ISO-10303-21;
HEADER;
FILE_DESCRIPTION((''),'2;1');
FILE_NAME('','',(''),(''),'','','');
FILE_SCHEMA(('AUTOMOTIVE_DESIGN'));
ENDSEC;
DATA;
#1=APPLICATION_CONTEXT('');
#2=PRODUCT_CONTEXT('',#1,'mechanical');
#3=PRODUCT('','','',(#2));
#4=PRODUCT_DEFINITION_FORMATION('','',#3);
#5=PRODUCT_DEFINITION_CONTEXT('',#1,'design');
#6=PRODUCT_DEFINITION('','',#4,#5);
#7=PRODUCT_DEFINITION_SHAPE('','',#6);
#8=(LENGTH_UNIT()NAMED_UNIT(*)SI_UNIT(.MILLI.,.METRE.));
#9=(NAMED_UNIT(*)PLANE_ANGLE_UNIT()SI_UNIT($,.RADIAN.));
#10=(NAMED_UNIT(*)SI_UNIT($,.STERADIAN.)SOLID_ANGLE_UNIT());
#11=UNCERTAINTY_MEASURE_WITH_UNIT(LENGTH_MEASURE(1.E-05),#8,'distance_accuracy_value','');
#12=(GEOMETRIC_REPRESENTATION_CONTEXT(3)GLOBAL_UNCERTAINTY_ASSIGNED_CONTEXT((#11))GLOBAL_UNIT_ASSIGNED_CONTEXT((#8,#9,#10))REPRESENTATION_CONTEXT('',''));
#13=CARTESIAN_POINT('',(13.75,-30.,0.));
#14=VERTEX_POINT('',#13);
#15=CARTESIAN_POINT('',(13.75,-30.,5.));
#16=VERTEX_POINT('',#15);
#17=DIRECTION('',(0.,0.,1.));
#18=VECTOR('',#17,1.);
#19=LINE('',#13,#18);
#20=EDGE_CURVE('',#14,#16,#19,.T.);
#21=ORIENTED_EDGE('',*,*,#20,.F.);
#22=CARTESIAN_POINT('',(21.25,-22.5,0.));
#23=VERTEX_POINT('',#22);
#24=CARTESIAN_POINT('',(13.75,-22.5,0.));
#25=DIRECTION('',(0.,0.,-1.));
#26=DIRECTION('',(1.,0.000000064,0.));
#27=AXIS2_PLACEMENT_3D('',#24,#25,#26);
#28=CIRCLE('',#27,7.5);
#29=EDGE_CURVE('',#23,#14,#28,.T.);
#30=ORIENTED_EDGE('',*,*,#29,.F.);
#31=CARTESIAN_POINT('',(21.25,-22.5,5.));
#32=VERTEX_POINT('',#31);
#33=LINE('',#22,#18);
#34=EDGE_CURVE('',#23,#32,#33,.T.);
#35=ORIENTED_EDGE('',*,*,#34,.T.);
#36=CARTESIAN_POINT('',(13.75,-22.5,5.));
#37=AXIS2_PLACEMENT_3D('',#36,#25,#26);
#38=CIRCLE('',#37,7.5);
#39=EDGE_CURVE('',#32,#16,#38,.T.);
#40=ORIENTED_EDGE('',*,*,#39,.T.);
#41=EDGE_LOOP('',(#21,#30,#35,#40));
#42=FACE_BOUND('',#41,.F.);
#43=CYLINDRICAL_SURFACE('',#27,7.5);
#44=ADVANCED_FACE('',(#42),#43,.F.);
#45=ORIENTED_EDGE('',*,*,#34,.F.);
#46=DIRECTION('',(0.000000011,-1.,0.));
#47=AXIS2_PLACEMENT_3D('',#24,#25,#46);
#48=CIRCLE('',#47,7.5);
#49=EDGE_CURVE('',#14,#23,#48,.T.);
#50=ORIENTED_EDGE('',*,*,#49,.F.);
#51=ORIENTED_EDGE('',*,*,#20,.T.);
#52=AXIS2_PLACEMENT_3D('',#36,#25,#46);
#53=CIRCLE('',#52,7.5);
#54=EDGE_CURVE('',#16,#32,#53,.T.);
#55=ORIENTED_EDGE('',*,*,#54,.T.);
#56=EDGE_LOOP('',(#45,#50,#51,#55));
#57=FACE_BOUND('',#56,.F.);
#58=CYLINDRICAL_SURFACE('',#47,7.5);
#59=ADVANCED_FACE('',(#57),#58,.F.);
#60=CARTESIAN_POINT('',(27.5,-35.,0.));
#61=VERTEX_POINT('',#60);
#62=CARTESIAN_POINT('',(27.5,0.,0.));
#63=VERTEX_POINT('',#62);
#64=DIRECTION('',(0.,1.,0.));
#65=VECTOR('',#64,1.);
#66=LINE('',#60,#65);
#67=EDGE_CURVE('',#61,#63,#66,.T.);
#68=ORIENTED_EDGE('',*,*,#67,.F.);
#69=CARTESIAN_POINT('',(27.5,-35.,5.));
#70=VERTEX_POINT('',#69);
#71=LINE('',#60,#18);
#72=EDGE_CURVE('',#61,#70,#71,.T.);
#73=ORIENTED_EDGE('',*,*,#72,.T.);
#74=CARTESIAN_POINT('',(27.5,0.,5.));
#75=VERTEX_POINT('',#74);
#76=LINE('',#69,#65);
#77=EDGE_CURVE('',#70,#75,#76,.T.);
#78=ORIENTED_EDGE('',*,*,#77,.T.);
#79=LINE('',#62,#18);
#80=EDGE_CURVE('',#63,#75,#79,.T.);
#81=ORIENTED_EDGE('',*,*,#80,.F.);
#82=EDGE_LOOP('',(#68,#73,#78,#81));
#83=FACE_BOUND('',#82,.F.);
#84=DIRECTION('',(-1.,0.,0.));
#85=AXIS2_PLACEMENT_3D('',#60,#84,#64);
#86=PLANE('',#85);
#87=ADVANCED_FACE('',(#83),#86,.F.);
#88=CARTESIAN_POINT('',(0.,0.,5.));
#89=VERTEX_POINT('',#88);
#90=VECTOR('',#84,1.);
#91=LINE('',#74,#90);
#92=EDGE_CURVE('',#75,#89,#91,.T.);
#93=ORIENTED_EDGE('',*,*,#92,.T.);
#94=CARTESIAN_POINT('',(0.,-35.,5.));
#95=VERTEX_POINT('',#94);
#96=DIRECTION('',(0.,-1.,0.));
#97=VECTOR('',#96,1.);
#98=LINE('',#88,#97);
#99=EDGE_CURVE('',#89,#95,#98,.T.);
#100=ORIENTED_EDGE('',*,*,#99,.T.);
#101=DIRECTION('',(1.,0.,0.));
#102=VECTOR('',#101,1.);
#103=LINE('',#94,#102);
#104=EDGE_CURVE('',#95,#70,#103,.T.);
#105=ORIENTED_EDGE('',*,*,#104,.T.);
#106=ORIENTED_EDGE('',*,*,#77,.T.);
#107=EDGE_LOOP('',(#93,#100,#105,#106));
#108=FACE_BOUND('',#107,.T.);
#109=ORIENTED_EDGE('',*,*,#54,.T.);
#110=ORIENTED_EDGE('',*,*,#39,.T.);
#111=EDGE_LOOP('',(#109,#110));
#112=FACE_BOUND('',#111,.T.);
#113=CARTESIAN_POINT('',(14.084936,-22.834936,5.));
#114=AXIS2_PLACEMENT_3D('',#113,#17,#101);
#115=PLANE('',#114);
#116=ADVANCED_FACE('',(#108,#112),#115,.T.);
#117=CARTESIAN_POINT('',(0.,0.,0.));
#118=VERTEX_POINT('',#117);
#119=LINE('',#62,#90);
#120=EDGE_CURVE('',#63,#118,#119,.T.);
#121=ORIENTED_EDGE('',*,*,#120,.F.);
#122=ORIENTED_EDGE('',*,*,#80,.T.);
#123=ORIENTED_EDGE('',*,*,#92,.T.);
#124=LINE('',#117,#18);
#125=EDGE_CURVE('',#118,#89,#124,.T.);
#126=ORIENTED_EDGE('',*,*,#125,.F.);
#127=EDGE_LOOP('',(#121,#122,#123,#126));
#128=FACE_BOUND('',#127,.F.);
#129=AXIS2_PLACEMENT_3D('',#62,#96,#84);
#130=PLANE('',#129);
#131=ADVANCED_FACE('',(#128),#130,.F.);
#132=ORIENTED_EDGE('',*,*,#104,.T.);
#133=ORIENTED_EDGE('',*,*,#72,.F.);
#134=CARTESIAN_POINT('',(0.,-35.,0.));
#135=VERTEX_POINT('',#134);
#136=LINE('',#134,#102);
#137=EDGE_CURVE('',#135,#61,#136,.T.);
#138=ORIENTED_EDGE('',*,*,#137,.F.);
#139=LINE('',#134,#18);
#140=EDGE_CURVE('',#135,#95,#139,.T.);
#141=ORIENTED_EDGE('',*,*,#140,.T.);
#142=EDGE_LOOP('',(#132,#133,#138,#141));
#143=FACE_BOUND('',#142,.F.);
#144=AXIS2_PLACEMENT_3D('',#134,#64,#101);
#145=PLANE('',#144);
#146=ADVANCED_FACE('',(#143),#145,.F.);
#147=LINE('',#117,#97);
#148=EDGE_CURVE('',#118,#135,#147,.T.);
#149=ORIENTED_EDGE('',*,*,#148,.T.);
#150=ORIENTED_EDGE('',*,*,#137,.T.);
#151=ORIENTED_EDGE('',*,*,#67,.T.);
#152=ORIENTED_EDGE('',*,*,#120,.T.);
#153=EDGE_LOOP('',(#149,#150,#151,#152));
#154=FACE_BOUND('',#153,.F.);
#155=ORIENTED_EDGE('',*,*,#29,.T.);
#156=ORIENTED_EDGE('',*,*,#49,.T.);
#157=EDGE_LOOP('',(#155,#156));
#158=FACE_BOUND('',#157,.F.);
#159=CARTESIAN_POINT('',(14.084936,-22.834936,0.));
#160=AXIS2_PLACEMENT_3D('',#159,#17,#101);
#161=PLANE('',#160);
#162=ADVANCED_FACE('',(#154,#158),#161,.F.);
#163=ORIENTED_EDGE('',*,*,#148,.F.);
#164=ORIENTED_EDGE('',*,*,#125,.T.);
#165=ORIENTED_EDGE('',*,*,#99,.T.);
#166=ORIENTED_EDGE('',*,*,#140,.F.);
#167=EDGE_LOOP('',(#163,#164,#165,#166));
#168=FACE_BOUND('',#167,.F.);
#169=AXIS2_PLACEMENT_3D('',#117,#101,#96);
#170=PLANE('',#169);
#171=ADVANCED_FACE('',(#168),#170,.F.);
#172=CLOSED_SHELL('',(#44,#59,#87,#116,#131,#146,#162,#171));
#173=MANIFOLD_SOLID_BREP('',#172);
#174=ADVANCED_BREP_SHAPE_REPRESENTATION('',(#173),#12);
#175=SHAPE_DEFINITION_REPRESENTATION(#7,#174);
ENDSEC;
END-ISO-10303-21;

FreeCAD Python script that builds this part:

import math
import FreeCAD as App
import Part
import Sketcher

V = App.Vector
Q = App.Units.Quantity

doc = App.newDocument("Part")
params = doc.addObject("Spreadsheet::Sheet", "Params")
for row, (alias, value) in enumerate([
    ("sketch1_radius", "7.5 mm"),
    ("sketch1_height", "35 mm"),
    ("sketch1_width", "27.5 mm"),
    ("pad1_length", "5 mm"),
], start=1):
    params.set(f"A{row}", alias)
    params.set(f"B{row}", "=" + value)
    params.setAlias(f"B{row}", alias)

body = doc.addObject("PartDesign::Body", "Body")

# Sketch on XY plane
sketch1 = body.newObject("Sketcher::SketchObject", "Sketch")
sketch1.AttachmentSupport = (doc.getObject("XY_Plane"), [""])
sketch1.MapMode = "FlatFace"
sketch1.addGeometry([
    Part.LineSegment(V(28, 0, 0), V(0, 0, 0)),  # 0
    Part.LineSegment(V(0, 0, 0), V(0, -35, 0)),  # 1
    Part.LineSegment(V(0, -35, 0), V(28, -35, 0)),  # 2
    Part.LineSegment(V(28, -35, 0), V(28, 0, 0)),  # 3
    Part.ArcOfCircle(Part.Circle(V(14, -22, 0), V(0, 0, 1), 8), math.radians(0), math.radians(270)),  # 4
    Part.ArcOfCircle(Part.Circle(V(14, -23, 0), V(0, 0, 1), 7), math.radians(-90), math.radians(0)),  # 5
], False)
sketch1.addConstraint([
    Sketcher.Constraint("Coincident", 0, 2, 1, 1),
    Sketcher.Constraint("Coincident", 1, 2, 2, 1),
    Sketcher.Constraint("Coincident", 2, 2, 3, 1),
    Sketcher.Constraint("Coincident", 3, 2, 0, 1),
    Sketcher.Constraint("Tangent", 4, 1, 5, 2),
    Sketcher.Constraint("Coincident", 5, 1, 4, 2),
    Sketcher.Constraint("Horizontal", 0),
    Sketcher.Constraint("Vertical", 1),
    Sketcher.Constraint("Horizontal", 2),
    Sketcher.Constraint("Vertical", 3),
    Sketcher.Constraint("Coincident", 0, 2, -1, 1),
    Sketcher.Constraint("Horizontal", 5, 3, 4, 1),
    Sketcher.Constraint("Vertical", 4, 3, 5, 1),
    Sketcher.Constraint("Radius", 4, Q("7.5 mm")),
    Sketcher.Constraint("DistanceY", 1, 2, 1, 1, Q("35 mm")),
    Sketcher.Constraint("DistanceX", 0, 2, 0, 1, Q("27.5 mm")),
    Sketcher.Constraint("DistanceY", 5, 1, -1, 1, Q("30 mm")),
    Sketcher.Constraint("DistanceX", -1, 1, 4, 3, Q("13.75 mm")),
])
sketch1.setExpression("Constraints[13]", "Params.sketch1_radius")
sketch1.setExpression("Constraints[14]", "Params.sketch1_height")
sketch1.setExpression("Constraints[15]", "Params.sketch1_width")
pad1 = body.newObject("PartDesign::Pad", "Pad")
pad1.Profile = sketch1
pad1.setExpression("Length", "Params.pad1_length")

doc.recompute()
